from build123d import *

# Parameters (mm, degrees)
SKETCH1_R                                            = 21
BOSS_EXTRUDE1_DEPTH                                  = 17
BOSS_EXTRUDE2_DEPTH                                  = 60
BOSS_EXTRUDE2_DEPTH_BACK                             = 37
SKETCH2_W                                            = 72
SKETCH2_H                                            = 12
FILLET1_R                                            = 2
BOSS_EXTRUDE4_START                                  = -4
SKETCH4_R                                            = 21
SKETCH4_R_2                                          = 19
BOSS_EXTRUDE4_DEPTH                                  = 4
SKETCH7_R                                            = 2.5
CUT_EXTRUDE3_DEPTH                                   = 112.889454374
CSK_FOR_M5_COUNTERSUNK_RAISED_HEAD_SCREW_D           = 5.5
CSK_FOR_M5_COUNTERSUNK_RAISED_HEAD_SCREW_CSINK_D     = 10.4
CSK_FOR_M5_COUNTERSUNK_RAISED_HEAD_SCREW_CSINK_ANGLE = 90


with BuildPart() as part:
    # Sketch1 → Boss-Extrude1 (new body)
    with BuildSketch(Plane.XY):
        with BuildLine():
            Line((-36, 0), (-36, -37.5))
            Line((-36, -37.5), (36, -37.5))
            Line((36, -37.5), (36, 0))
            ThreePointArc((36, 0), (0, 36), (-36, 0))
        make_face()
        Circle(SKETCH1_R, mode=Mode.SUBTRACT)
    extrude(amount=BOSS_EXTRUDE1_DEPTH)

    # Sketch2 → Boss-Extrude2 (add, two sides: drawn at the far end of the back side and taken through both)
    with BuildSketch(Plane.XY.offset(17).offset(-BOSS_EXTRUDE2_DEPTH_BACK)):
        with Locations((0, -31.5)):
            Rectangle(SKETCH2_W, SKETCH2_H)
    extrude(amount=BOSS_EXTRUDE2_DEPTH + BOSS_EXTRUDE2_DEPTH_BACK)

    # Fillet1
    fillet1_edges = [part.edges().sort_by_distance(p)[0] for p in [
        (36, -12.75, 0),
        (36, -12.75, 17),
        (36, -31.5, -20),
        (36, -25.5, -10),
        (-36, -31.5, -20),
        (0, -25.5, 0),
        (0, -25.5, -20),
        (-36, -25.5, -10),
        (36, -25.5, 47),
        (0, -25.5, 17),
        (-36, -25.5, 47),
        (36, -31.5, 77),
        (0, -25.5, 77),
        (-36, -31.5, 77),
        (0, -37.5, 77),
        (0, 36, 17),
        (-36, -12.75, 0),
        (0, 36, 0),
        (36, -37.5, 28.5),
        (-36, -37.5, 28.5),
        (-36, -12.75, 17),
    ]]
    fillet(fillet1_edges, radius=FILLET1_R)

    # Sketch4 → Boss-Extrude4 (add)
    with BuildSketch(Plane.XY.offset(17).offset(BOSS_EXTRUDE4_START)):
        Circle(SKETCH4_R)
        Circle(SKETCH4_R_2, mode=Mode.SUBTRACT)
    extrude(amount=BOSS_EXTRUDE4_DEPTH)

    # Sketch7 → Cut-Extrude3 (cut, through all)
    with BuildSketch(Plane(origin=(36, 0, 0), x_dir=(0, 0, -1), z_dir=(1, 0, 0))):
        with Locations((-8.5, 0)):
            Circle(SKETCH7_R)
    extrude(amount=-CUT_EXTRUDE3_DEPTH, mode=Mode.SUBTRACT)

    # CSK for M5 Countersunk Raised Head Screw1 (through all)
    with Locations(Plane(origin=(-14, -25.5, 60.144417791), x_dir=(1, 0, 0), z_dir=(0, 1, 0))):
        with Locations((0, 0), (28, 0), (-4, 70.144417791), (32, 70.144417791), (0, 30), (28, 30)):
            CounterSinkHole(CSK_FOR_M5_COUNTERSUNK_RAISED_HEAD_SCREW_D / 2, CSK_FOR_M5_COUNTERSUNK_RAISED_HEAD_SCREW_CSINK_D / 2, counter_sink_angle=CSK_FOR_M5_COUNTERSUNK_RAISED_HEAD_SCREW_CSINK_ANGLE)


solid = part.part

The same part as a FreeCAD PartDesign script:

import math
import FreeCAD as App
import Part
import Sketcher

V = App.Vector


def edges_at(feature, points):
    """Names of the edges that pass closest to the given points."""
    edges = feature.Shape.Edges
    near = lambda p: min(range(len(edges)), key=lambda i: edges[i].distToShape(Part.Vertex(*p))[0])
    return sorted({f"Edge{near(p) + 1}" for p in points})


def add_polygon(sketch, points):
    """Adds a closed chain of lines whose ends are joined by coincident constraints."""
    first, n = sketch.GeometryCount, len(points)
    for a, b in zip(points, points[1:] + points[:1]):
        sketch.addGeometry(Part.LineSegment(App.Vector(*a, 0), App.Vector(*b, 0)), False)
    for i in range(n):
        sketch.addConstraint(Sketcher.Constraint("Coincident", first + i, 2, first + (i + 1) % n, 1))

doc = App.newDocument("Part")
body = doc.addObject("PartDesign::Body", "Body")

# Sketch on XY plane
sketch1 = doc.addObject("Sketcher::SketchObject", "Sketch")
body.addObject(sketch1)
sketch1.AttachmentSupport = (doc.XY_Plane, [""])
sketch1.MapMode = "FlatFace"
sketch1.addGeometry(Part.LineSegment(V(-36, 0, 0), V(-36, -37.5, 0)), False)
sketch1.addGeometry(Part.LineSegment(V(-36, -37.5, 0), V(36, -37.5, 0)), False)
sketch1.addGeometry(Part.LineSegment(V(36, -37.5, 0), V(36, 0, 0)), False)
sketch1.addGeometry(Part.ArcOfCircle(Part.Circle(V(0, 0, 0), V(0, 0, 1), 36), math.radians(0), math.radians(180)), False)
sketch1.addGeometry(Part.Circle(V(0, 0, 0), V(0, 0, 1), 21), False)
sketch1.addConstraint(Sketcher.Constraint("Coincident", 0, 2, 1, 1))
sketch1.addConstraint(Sketcher.Constraint("Coincident", 1, 2, 2, 1))
sketch1.addConstraint(Sketcher.Constraint("Tangent", 2, 2, 3, 1))
sketch1.addConstraint(Sketcher.Constraint("Tangent", 3, 2, 0, 1))
sketch1.addConstraint(Sketcher.Constraint("Vertical", 0))
sketch1.addConstraint(Sketcher.Constraint("Horizontal", 1))
sketch1.addConstraint(Sketcher.Constraint("Vertical", 2))
sketch1.addConstraint(Sketcher.Constraint("Coincident", 3, 3, -1, 1))
sketch1.addConstraint(Sketcher.Constraint("Coincident", 4, 3, -1, 1))
sketch1.addConstraint(Sketcher.Constraint("Diameter", 4, 42.0))
sketch1.addConstraint(Sketcher.Constraint("Radius", 3, 36.0))
sketch1.addConstraint(Sketcher.Constraint("DistanceY", 0, 2, 0, 1, 37.5))
pad1 = doc.addObject("PartDesign::Pad", "Pad")
body.addObject(pad1)
pad1.Profile = sketch1
pad1.Length = 17

# Sketch on XY plane
sketch2 = doc.addObject("Sketcher::SketchObject", "Sketch001")
body.addObject(sketch2)
sketch2.AttachmentSupport = (doc.XY_Plane, [""])
sketch2.MapMode = "FlatFace"
sketch2.AttachmentOffset = App.Placement(V(0, 0, 17), App.Rotation())
add_polygon(sketch2, [(-36, -25.5), (-36, -37.5), (36, -37.5), (36, -25.5)])  # lines 0-3
sketch2.addConstraint(Sketcher.Constraint("Vertical", 0))
sketch2.addConstraint(Sketcher.Constraint("Horizontal", 1))
sketch2.addConstraint(Sketcher.Constraint("Vertical", 2))
sketch2.addConstraint(Sketcher.Constraint("Horizontal", 3))
sketch2.addConstraint(Sketcher.Constraint("DistanceX", 1, 1, 1, 2, 72.0))
sketch2.addConstraint(Sketcher.Constraint("DistanceY", 0, 2, 0, 1, 12.0))
sketch2.addConstraint(Sketcher.Constraint("DistanceX", 0, 2, -1, 1, 36.0))
sketch2.addConstraint(Sketcher.Constraint("DistanceY", 0, 2, -1, 1, 37.5))
pad2 = doc.addObject("PartDesign::Pad", "Pad001")
body.addObject(pad2)
pad2.Profile = sketch2
pad2.Type = "TwoLengths"
pad2.Length = 60
pad2.Length2 = 37
doc.recompute()

fillet = doc.addObject("PartDesign::Fillet", "Fillet")
body.addObject(fillet)
fillet.Base = (pad2, edges_at(pad2, [
    (36, -12.75, 0),
    (36, -12.75, 17),
    (36, -31.5, -20),
    (36, -25.5, -10),
    (-36, -31.5, -20),
    (0, -25.5, 0),
    (0, -25.5, -20),
    (-36, -25.5, -10),
    (36, -25.5, 47),
    (0, -25.5, 17),
    (-36, -25.5, 47),
    (36, -31.5, 77),
    (0, -25.5, 77),
    (-36, -31.5, 77),
    (0, -37.5, 77),
    (0, 36, 17),
    (-36, -12.75, 0),
    (0, 36, 0),
    (36, -37.5, 28.5),
    (-36, -37.5, 28.5),
    (-36, -12.75, 17),
]))
fillet.Radius = 2

# Sketch on XY plane
sketch3 = doc.addObject("Sketcher::SketchObject", "Sketch002")
body.addObject(sketch3)
sketch3.AttachmentSupport = (doc.XY_Plane, [""])
sketch3.MapMode = "FlatFace"
sketch3.AttachmentOffset = App.Placement(V(0, 0, 13), App.Rotation())
sketch3.addGeometry(Part.Circle(V(0, 0, 0), V(0, 0, 1), 21), False)
sketch3.addGeometry(Part.Circle(V(0, 0, 0), V(0, 0, 1), 19), False)
sketch3.addConstraint(Sketcher.Constraint("Coincident", 0, 3, -1, 1))
sketch3.addConstraint(Sketcher.Constraint("Coincident", 1, 3, -1, 1))
sketch3.addConstraint(Sketcher.Constraint("Diameter", 0, 42.0))
sketch3.addConstraint(Sketcher.Constraint("Diameter", 1, 38.0))
pad3 = doc.addObject("PartDesign::Pad", "Pad002")
body.addObject(pad3)
pad3.Profile = sketch3
pad3.Length = 4

# Sketch on YZ plane
sketch4 = doc.addObject("Sketcher::SketchObject", "Sketch003")
body.addObject(sketch4)
sketch4.AttachmentSupport = (doc.YZ_Plane, [""])
sketch4.MapMode = "FlatFace"
sketch4.AttachmentOffset = App.Placement(V(0, 0, 36), App.Rotation())
sketch4.addGeometry(Part.Circle(V(0, 8.5, 0), V(0, 0, 1), 2.5), False)
sketch4.addConstraint(Sketcher.Constraint("PointOnObject", 0, 3, -2))
sketch4.addConstraint(Sketcher.Constraint("Diameter", 0, 5.0))
sketch4.addConstraint(Sketcher.Constraint("DistanceY", -1, 1, 0, 3, 8.5))
pocket1 = doc.addObject("PartDesign::Pocket", "Pocket")
body.addObject(pocket1)
pocket1.Profile = sketch4
pocket1.Type = "ThroughAll"

# Sketch on XZ plane
sketch5 = doc.addObject("Sketcher::SketchObject", "Sketch004")
body.addObject(sketch5)
sketch5.AttachmentSupport = (doc.XZ_Plane, [""])
sketch5.MapMode = "FlatFace"
sketch5.AttachmentOffset = App.Placement(V(0, 0, 25.5), App.Rotation())
sketch5.addGeometry(Part.Circle(V(-14, 60.144418, 0), V(0, 0, 1), 2.75), False)
sketch5.addGeometry(Part.Circle(V(14, 60.144418, 0), V(0, 0, 1), 2.75), False)
sketch5.addGeometry(Part.Circle(V(-18, -10, 0), V(0, 0, 1), 2.75), False)
sketch5.addGeometry(Part.Circle(V(18, -10, 0), V(0, 0, 1), 2.75), False)
sketch5.addGeometry(Part.Circle(V(-14, 30.144418, 0), V(0, 0, 1), 2.75), False)
sketch5.addGeometry(Part.Circle(V(14, 30.144418, 0), V(0, 0, 1), 2.75), False)
sketch5.addConstraint(Sketcher.Constraint("Equal", 0, 1))
sketch5.addConstraint(Sketcher.Constraint("Equal", 1, 2))
sketch5.addConstraint(Sketcher.Constraint("Equal", 2, 3))
sketch5.addConstraint(Sketcher.Constraint("Equal", 3, 4))
sketch5.addConstraint(Sketcher.Constraint("Equal", 4, 5))
sketch5.addConstraint(Sketcher.Constraint("Symmetric", 0, 3, 1, 3, -2))
sketch5.addConstraint(Sketcher.Constraint("Symmetric", 2, 3, 3, 3, -2))
sketch5.addConstraint(Sketcher.Constraint("Symmetric", 4, 3, 5, 3, -2))
sketch5.addConstraint(Sketcher.Constraint("Vertical", 0, 3, 4, 3))
sketch5.addConstraint(Sketcher.Constraint("Diameter", 0, 5.5))
sketch5.addConstraint(Sketcher.Constraint("DistanceX", 0, 3, -1, 1, 14.0))
sketch5.addConstraint(Sketcher.Constraint("DistanceX", 2, 3, -1, 1, 18.0))
sketch5.addConstraint(Sketcher.Constraint("DistanceY", 2, 3, -1, 1, 10.0))
sketch5.addConstraint(Sketcher.Constraint("DistanceY", 4, 3, 0, 3, 30.0))
sketch5.addConstraint(Sketcher.Constraint("DistanceY", -1, 1, 0, 3, 60.144418))
doc.recompute()
hole = doc.addObject("PartDesign::Hole", "Hole")
body.addObject(hole)
hole.Profile = sketch5
hole.ThreadType = "None"
hole.Diameter = 5.5
hole.DepthType = "ThroughAll"
hole.HoleCutType = "Countersink"
hole.HoleCutDiameter = 10.4
hole.HoleCutCountersinkAngle = 90
hole.Reversed = True

doc.recompute()
